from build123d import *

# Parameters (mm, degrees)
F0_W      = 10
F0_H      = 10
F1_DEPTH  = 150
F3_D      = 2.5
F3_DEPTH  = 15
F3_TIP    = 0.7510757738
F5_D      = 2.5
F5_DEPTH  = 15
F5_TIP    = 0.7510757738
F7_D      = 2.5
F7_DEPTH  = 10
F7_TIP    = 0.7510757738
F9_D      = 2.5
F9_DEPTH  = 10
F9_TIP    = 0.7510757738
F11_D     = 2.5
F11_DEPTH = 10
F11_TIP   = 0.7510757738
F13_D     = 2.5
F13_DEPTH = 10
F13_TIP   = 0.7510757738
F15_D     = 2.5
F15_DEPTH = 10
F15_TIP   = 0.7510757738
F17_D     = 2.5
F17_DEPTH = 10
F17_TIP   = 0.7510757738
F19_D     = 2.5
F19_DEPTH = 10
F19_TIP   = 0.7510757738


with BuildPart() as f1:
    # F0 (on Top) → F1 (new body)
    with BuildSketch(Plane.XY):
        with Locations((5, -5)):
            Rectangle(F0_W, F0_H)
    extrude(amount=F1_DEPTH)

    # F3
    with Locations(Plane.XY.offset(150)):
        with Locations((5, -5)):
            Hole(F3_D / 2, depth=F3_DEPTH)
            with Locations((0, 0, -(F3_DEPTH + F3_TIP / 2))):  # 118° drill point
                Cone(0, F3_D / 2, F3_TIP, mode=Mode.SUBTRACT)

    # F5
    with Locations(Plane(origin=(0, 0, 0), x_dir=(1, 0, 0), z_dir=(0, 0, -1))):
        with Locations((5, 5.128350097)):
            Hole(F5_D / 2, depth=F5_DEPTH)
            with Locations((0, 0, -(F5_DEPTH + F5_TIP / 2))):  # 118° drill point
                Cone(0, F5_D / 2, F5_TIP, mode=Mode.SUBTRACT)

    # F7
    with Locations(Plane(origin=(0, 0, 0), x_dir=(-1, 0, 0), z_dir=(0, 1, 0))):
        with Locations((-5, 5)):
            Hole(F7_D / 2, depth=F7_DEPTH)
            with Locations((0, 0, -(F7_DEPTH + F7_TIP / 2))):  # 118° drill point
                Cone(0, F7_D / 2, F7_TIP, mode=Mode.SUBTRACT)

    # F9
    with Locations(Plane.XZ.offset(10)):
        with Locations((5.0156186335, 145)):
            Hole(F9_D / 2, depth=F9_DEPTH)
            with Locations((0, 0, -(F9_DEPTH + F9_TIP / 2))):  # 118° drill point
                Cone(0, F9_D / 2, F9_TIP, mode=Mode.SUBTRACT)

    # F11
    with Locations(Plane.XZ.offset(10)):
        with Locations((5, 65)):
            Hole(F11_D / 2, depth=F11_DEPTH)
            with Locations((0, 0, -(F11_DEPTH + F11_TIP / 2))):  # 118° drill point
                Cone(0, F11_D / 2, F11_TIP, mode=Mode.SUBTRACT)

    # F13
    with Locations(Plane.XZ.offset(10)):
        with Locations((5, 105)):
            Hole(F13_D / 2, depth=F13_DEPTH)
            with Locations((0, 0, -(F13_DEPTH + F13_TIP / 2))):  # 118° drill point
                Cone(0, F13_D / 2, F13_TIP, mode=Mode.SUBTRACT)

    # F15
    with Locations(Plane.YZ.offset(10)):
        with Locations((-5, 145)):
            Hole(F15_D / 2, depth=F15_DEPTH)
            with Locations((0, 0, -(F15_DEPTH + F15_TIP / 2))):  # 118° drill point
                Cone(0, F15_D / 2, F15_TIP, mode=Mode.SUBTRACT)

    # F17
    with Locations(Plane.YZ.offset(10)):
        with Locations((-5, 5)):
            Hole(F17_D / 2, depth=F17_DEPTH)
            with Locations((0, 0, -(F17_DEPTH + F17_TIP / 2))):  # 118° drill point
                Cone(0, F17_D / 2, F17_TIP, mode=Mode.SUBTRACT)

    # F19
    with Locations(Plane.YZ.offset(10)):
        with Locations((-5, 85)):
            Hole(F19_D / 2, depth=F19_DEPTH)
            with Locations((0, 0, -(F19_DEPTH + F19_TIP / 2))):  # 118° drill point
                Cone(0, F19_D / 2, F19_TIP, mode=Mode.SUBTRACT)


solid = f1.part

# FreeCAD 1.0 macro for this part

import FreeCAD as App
import Part
import Sketcher
from FreeCAD import Vector


def add_polygon(sketch, points):
    """Adds a closed chain of lines whose ends are joined by coincident constraints."""
    first, n = sketch.GeometryCount, len(points)
    for a, b in zip(points, points[1:] + points[:1]):
        sketch.addGeometry(Part.LineSegment(App.Vector(*a, 0), App.Vector(*b, 0)), False)
    for i in range(n):
        sketch.addConstraint(Sketcher.Constraint("Coincident", first + i, 2, first + (i + 1) % n, 1))

doc = App.newDocument("Part")
body = doc.addObject("PartDesign::Body", "Body")

# Sketch on XY plane
sketch1 = doc.addObject("Sketcher::SketchObject", "Sketch")
body.addObject(sketch1)
sketch1.AttachmentSupport = (doc.XY_Plane, [""])
sketch1.MapMode = "FlatFace"
add_polygon(sketch1, [(0, 0), (0, -10), (10, -10), (10, 0)])  # lines 0-3
sketch1.addConstraint(Sketcher.Constraint("Vertical", 0))
sketch1.addConstraint(Sketcher.Constraint("Horizontal", 1))
sketch1.addConstraint(Sketcher.Constraint("Vertical", 2))
sketch1.addConstraint(Sketcher.Constraint("Horizontal", 3))
sketch1.addConstraint(Sketcher.Constraint("Coincident", 3, 2, -1, 1))
sketch1.addConstraint(Sketcher.Constraint("Equal", 3, 0))
sketch1.addConstraint(Sketcher.Constraint("DistanceX", 1, 1, 1, 2, 10.0))
pad1 = doc.addObject("PartDesign::Pad", "Pad")
body.addObject(pad1)
pad1.Profile = sketch1
pad1.Length = 150

# Sketch on XY plane
sketch2 = doc.addObject("Sketcher::SketchObject", "Sketch001")
body.addObject(sketch2)
sketch2.AttachmentSupport = (doc.XY_Plane, [""])
sketch2.MapMode = "FlatFace"
sketch2.AttachmentOffset = App.Placement(Vector(0, 0, 150), App.Rotation())
sketch2.addGeometry(Part.Circle(Vector(5, -5, 0), Vector(0, 0, 1), 1.2), False)
sketch2.addConstraint(Sketcher.Constraint("Diameter", 0, 2.5))
sketch2.addConstraint(Sketcher.Constraint("DistanceX", -1, 1, 0, 3, 5.0))
sketch2.addConstraint(Sketcher.Constraint("DistanceY", 0, 3, -1, 1, 5.0))
doc.recompute()
hole = doc.addObject("PartDesign::Hole", "Hole")
body.addObject(hole)
hole.Profile = sketch2
hole.ThreadType = "None"
hole.Diameter = 2.5
hole.DepthType = "Dimension"
hole.Depth = 15
hole.DrillPoint = "Angled"
hole.DrillPointAngle = 118

# Sketch on XY plane
sketch3 = doc.addObject("Sketcher::SketchObject", "Sketch002")
body.addObject(sketch3)
sketch3.AttachmentSupport = (doc.XY_Plane, [""])
sketch3.MapMode = "FlatFace"
sketch3.addGeometry(Part.Circle(Vector(5, -5.1, 0), Vector(0, 0, 1), 1.2), False)
sketch3.addConstraint(Sketcher.Constraint("Diameter", 0, 2.5))
sketch3.addConstraint(Sketcher.Constraint("DistanceX", -1, 1, 0, 3, 5.0))
sketch3.addConstraint(Sketcher.Constraint("DistanceY", 0, 3, -1, 1, 5.12835))
doc.recompute()
hole2 = doc.addObject("PartDesign::Hole", "Hole001")
body.addObject(hole2)
hole2.Profile = sketch3
hole2.ThreadType = "None"
hole2.Diameter = 2.5
hole2.DepthType = "Dimension"
hole2.Depth = 15
hole2.DrillPoint = "Angled"
hole2.DrillPointAngle = 118
hole2.Reversed = True

# Sketch on XZ plane
sketch4 = doc.addObject("Sketcher::SketchObject", "Sketch003")
body.addObject(sketch4)
sketch4.AttachmentSupport = (doc.XZ_Plane, [""])
sketch4.MapMode = "FlatFace"
sketch4.addGeometry(Part.Circle(Vector(5, 5, 0), Vector(0, 0, 1), 1.2), False)
sketch4.addConstraint(Sketcher.Constraint("Diameter", 0, 2.5))
sketch4.addConstraint(Sketcher.Constraint("DistanceX", -1, 1, 0, 3, 5.0))
sketch4.addConstraint(Sketcher.Constraint("DistanceY", -1, 1, 0, 3, 5.0))
doc.recompute()
hole3 = doc.addObject("PartDesign::Hole", "Hole002")
body.addObject(hole3)
hole3.Profile = sketch4
hole3.ThreadType = "None"
hole3.Diameter = 2.5
hole3.DepthType = "Dimension"
hole3.Depth = 10
hole3.DrillPoint = "Angled"
hole3.DrillPointAngle = 118
hole3.Reversed = True

# Sketch on XZ plane
sketch5 = doc.addObject("Sketcher::SketchObject", "Sketch004")
body.addObject(sketch5)
sketch5.AttachmentSupport = (doc.XZ_Plane, [""])
sketch5.MapMode = "FlatFace"
sketch5.AttachmentOffset = App.Placement(Vector(0, 0, 10), App.Rotation())
sketch5.addGeometry(Part.Circle(Vector(5, 145, 0), Vector(0, 0, 1), 1.2), False)
sketch5.addConstraint(Sketcher.Constraint("Diameter", 0, 2.5))
sketch5.addConstraint(Sketcher.Constraint("DistanceY", -1, 1, 0, 3, 145.0))
sketch5.addConstraint(Sketcher.Constraint("DistanceX", -1, 1, 0, 3, 5.015619))
doc.recompute()
hole4 = doc.addObject("PartDesign::Hole", "Hole003")
body.addObject(hole4)
hole4.Profile = sketch5
hole4.ThreadType = "None"
hole4.Diameter = 2.5
hole4.DepthType = "Dimension"
hole4.Depth = 10
hole4.DrillPoint = "Angled"
hole4.DrillPointAngle = 118

# Sketch on XZ plane
sketch6 = doc.addObject("Sketcher::SketchObject", "Sketch005")
body.addObject(sketch6)
sketch6.AttachmentSupport = (doc.XZ_Plane, [""])
sketch6.MapMode = "FlatFace"
sketch6.AttachmentOffset = App.Placement(Vector(0, 0, 10), App.Rotation())
sketch6.addGeometry(Part.Circle(Vector(5, 65, 0), Vector(0, 0, 1), 1.2), False)
sketch6.addConstraint(Sketcher.Constraint("Diameter", 0, 2.5))
sketch6.addConstraint(Sketcher.Constraint("DistanceX", -1, 1, 0, 3, 5.0))
sketch6.addConstraint(Sketcher.Constraint("DistanceY", -1, 1, 0, 3, 65.0))
doc.recompute()
hole5 = doc.addObject("PartDesign::Hole", "Hole004")
body.addObject(hole5)
hole5.Profile = sketch6
hole5.ThreadType = "None"
hole5.Diameter = 2.5
hole5.DepthType = "Dimension"
hole5.Depth = 10
hole5.DrillPoint = "Angled"
hole5.DrillPointAngle = 118

# Sketch on XZ plane
sketch7 = doc.addObject("Sketcher::SketchObject", "Sketch006")
body.addObject(sketch7)
sketch7.AttachmentSupport = (doc.XZ_Plane, [""])
sketch7.MapMode = "FlatFace"
sketch7.AttachmentOffset = App.Placement(Vector(0, 0, 10), App.Rotation())
sketch7.addGeometry(Part.Circle(Vector(5, 105, 0), Vector(0, 0, 1), 1.2), False)
sketch7.addConstraint(Sketcher.Constraint("Diameter", 0, 2.5))
sketch7.addConstraint(Sketcher.Constraint("DistanceX", -1, 1, 0, 3, 5.0))
sketch7.addConstraint(Sketcher.Constraint("DistanceY", -1, 1, 0, 3, 105.0))
doc.recompute()
hole6 = doc.addObject("PartDesign::Hole", "Hole005")
body.addObject(hole6)
hole6.Profile = sketch7
hole6.ThreadType = "None"
hole6.Diameter = 2.5
hole6.DepthType = "Dimension"
hole6.Depth = 10
hole6.DrillPoint = "Angled"
hole6.DrillPointAngle = 118

# Sketch on YZ plane
sketch8 = doc.addObject("Sketcher::SketchObject", "Sketch007")
body.addObject(sketch8)
sketch8.AttachmentSupport = (doc.YZ_Plane, [""])
sketch8.MapMode = "FlatFace"
sketch8.AttachmentOffset = App.Placement(Vector(0, 0, 10), App.Rotation())
sketch8.addGeometry(Part.Circle(Vector(-5, 145, 0), Vector(0, 0, 1), 1.2), False)
sketch8.addConstraint(Sketcher.Constraint("Diameter", 0, 2.5))
sketch8.addConstraint(Sketcher.Constraint("DistanceX", 0, 3, -1, 1, 5.0))
sketch8.addConstraint(Sketcher.Constraint("DistanceY", -1, 1, 0, 3, 145.0))
doc.recompute()
hole7 = doc.addObject("PartDesign::Hole", "Hole006")
body.addObject(hole7)
hole7.Profile = sketch8
hole7.ThreadType = "None"
hole7.Diameter = 2.5
hole7.DepthType = "Dimension"
hole7.Depth = 10
hole7.DrillPoint = "Angled"
hole7.DrillPointAngle = 118

# Sketch on YZ plane
sketch9 = doc.addObject("Sketcher::SketchObject", "Sketch008")
body.addObject(sketch9)
sketch9.AttachmentSupport = (doc.YZ_Plane, [""])
sketch9.MapMode = "FlatFace"
sketch9.AttachmentOffset = App.Placement(Vector(0, 0, 10), App.Rotation())
sketch9.addGeometry(Part.Circle(Vector(-5, 5, 0), Vector(0, 0, 1), 1.2), False)
sketch9.addConstraint(Sketcher.Constraint("Diameter", 0, 2.5))
sketch9.addConstraint(Sketcher.Constraint("DistanceX", 0, 3, -1, 1, 5.0))
sketch9.addConstraint(Sketcher.Constraint("DistanceY", -1, 1, 0, 3, 5.0))
doc.recompute()
hole8 = doc.addObject("PartDesign::Hole", "Hole007")
body.addObject(hole8)
hole8.Profile = sketch9
hole8.ThreadType = "None"
hole8.Diameter = 2.5
hole8.DepthType = "Dimension"
hole8.Depth = 10
hole8.DrillPoint = "Angled"
hole8.DrillPointAngle = 118

# Sketch on YZ plane
sketch10 = doc.addObject("Sketcher::SketchObject", "Sketch009")
body.addObject(sketch10)
sketch10.AttachmentSupport = (doc.YZ_Plane, [""])
sketch10.MapMode = "FlatFace"
sketch10.AttachmentOffset = App.Placement(Vector(0, 0, 10), App.Rotation())
sketch10.addGeometry(Part.Circle(Vector(-5, 85, 0), Vector(0, 0, 1), 1.2), False)
sketch10.addConstraint(Sketcher.Constraint("Diameter", 0, 2.5))
sketch10.addConstraint(Sketcher.Constraint("DistanceX", 0, 3, -1, 1, 5.0))
sketch10.addConstraint(Sketcher.Constraint("DistanceY", -1, 1, 0, 3, 85.0))
doc.recompute()
hole9 = doc.addObject("PartDesign::Hole", "Hole008")
body.addObject(hole9)
hole9.Profile = sketch10
hole9.ThreadType = "None"
hole9.Diameter = 2.5
hole9.DepthType = "Dimension"
hole9.Depth = 10
hole9.DrillPoint = "Angled"
hole9.DrillPointAngle = 118

doc.recompute()
